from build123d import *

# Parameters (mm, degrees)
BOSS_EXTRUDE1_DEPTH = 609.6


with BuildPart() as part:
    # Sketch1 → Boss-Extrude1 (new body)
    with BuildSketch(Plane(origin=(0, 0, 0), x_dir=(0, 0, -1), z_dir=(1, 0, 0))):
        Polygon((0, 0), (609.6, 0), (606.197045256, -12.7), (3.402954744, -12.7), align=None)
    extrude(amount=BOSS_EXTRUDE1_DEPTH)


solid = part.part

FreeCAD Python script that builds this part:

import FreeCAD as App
import Part
import Sketcher

V = App.Vector
Q = App.Units.Quantity

doc = App.newDocument("Part")
body = doc.addObject("PartDesign::Body", "Body")

# Sketch on YZ plane
sketch1 = body.newObject("Sketcher::SketchObject", "Sketch")
sketch1.AttachmentSupport = (doc.getObject("YZ_Plane"), [""])
sketch1.MapMode = "FlatFace"
sketch1.addGeometry(Part.LineSegment(V(0, -610, 0), V(0, 0, 0)), False)
sketch1.addGeometry(Part.LineSegment(V(0, 0, 0), V(-13, -3, 0)), False)
sketch1.addGeometry(Part.LineSegment(V(-13, -3, 0), V(-13, -606, 0)), False)
sketch1.addGeometry(Part.LineSegment(V(-13, -606, 0), V(0, -610, 0)), False)
sketch1.addConstraint(Sketcher.Constraint("Coincident", 0, 2, 1, 1))
sketch1.addConstraint(Sketcher.Constraint("Coincident", 1, 2, 2, 1))
sketch1.addConstraint(Sketcher.Constraint("Coincident", 2, 2, 3, 1))
sketch1.addConstraint(Sketcher.Constraint("Coincident", 3, 2, 0, 1))
sketch1.addConstraint(Sketcher.Constraint("Vertical", 0))
sketch1.addConstraint(Sketcher.Constraint("Vertical", 2))
sketch1.addConstraint(Sketcher.Constraint("Coincident", 0, 2, -1, 1))
sketch1.addConstraint(Sketcher.Constraint("Equal", 1, 3))
sketch1.addConstraint(Sketcher.Constraint("DistanceY", 0, 1, 0, 2, Q("24 in")))
sketch1.addConstraint(Sketcher.Constraint("Angle", 1, Q("-165 deg")))
sketch1.addConstraint(Sketcher.Constraint("DistanceX", 1, 2, -1, 1, Q("0.5 in")))
pad1 = body.newObject("PartDesign::Pad", "Pad")
pad1.Profile = sketch1
pad1.Length = Q("24 in")

doc.recompute()
